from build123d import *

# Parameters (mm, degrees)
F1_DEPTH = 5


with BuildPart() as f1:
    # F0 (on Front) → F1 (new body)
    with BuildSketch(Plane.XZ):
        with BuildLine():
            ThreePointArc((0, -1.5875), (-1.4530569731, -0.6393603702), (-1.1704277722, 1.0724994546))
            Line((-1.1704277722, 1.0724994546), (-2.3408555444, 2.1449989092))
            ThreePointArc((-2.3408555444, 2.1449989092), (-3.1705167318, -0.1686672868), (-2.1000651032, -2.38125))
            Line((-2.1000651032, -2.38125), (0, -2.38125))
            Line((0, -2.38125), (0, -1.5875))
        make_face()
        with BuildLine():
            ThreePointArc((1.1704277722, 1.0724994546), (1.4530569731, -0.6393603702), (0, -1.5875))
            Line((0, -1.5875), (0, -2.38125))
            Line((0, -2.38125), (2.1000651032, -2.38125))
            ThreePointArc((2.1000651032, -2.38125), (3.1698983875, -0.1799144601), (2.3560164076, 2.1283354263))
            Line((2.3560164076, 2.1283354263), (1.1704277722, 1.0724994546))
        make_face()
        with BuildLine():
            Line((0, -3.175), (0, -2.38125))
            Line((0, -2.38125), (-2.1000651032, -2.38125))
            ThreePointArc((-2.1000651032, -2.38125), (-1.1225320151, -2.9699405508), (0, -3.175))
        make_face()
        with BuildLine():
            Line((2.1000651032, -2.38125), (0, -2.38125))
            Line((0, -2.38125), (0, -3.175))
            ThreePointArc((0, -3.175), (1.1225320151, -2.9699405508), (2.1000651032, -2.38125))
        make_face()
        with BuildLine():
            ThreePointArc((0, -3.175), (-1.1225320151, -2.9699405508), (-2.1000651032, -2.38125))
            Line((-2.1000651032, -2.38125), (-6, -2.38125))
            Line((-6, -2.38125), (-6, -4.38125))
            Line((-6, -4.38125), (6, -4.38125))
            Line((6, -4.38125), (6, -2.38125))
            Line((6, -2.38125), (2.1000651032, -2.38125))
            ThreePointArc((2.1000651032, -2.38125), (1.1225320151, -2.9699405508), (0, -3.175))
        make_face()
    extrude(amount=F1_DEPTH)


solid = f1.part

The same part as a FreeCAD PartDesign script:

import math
import FreeCAD as App
import Part
import Sketcher
from FreeCAD import Vector
Q = App.Units.Quantity

doc = App.newDocument("Part")
body = doc.addObject("PartDesign::Body", "Body")

# Sketch on XZ plane
sketch1 = body.newObject("Sketcher::SketchObject", "Sketch")
sketch1.AttachmentSupport = (doc.getObject("XZ_Plane"), [""])
sketch1.MapMode = "FlatFace"
sketch1.addGeometry(Part.ArcOfCircle(Part.Circle(Vector(0, 0, 0), Vector(0, 0, 1), 1.5875), math.radians(137.5), math.radians(270)), False)
sketch1.addGeometry(Part.LineSegment(Vector(-1.170428, 1.072499, 0), Vector(-2.340856, 2.144999, 0)), False)
sketch1.addGeometry(Part.ArcOfCircle(Part.Circle(Vector(0, 0, 0), Vector(0, 0, 1), 3.175), math.radians(137.5), math.radians(228.590378)), False)
sketch1.addGeometry(Part.LineSegment(Vector(-2.100065, -2.38125, 0), Vector(-6, -2.38125, 0)), False)
sketch1.addGeometry(Part.LineSegment(Vector(-6, -2.38125, 0), Vector(-6, -4.38125, 0)), False)
sketch1.addGeometry(Part.LineSegment(Vector(-6, -4.38125, 0), Vector(6, -4.38125, 0)), False)
sketch1.addGeometry(Part.LineSegment(Vector(6, -4.38125, 0), Vector(6, -2.38125, 0)), False)
sketch1.addGeometry(Part.LineSegment(Vector(6, -2.38125, 0), Vector(2.100065, -2.38125, 0)), False)
sketch1.addGeometry(Part.ArcOfCircle(Part.Circle(Vector(0, 0, 0), Vector(0, 0, 1), 3.175), math.radians(-48.590378), math.radians(42.093456)), False)
sketch1.addGeometry(Part.LineSegment(Vector(2.356016, 2.128335, 0), Vector(1.170428, 1.072499, 0)), False)
sketch1.addGeometry(Part.ArcOfCircle(Part.Circle(Vector(0, 0, 0), Vector(0, 0, 1), 1.5875), math.radians(-90), math.radians(42.5)), False)
sketch1.addConstraint(Sketcher.Constraint("Coincident", 0, 1, 1, 1))
sketch1.addConstraint(Sketcher.Constraint("Coincident", 1, 2, 2, 1))
sketch1.addConstraint(Sketcher.Constraint("Coincident", 2, 2, 3, 1))
sketch1.addConstraint(Sketcher.Constraint("Coincident", 3, 2, 4, 1))
sketch1.addConstraint(Sketcher.Constraint("Coincident", 4, 2, 5, 1))
sketch1.addConstraint(Sketcher.Constraint("Coincident", 5, 2, 6, 1))
sketch1.addConstraint(Sketcher.Constraint("Coincident", 6, 2, 7, 1))
sketch1.addConstraint(Sketcher.Constraint("Coincident", 7, 2, 8, 1))
sketch1.addConstraint(Sketcher.Constraint("Coincident", 8, 2, 9, 1))
sketch1.addConstraint(Sketcher.Constraint("Coincident", 9, 2, 10, 2))
sketch1.addConstraint(Sketcher.Constraint("Tangent", 10, 1, 0, 2))
sketch1.addConstraint(Sketcher.Constraint("Horizontal", 3))
sketch1.addConstraint(Sketcher.Constraint("Vertical", 4))
sketch1.addConstraint(Sketcher.Constraint("Horizontal", 5))
sketch1.addConstraint(Sketcher.Constraint("Vertical", 6))
sketch1.addConstraint(Sketcher.Constraint("Horizontal", 7))
sketch1.addConstraint(Sketcher.Constraint("Coincident", 0, 3, -1, 1))
sketch1.addConstraint(Sketcher.Constraint("Coincident", 2, 3, -1, 1))
sketch1.addConstraint(Sketcher.Constraint("Coincident", 8, 3, -1, 1))
sketch1.addConstraint(Sketcher.Constraint("Equal", 2, 8))
sketch1.addConstraint(Sketcher.Constraint("Equal", 0, 10))
sketch1.addConstraint(Sketcher.Constraint("Symmetric", 3, 2, 6, 2, -2))
sketch1.addConstraint(Sketcher.Constraint("PointOnObject", 10, 1, -2))
sketch1.addConstraint(Sketcher.Constraint("Horizontal", 0, 1, 9, 2))
sketch1.addConstraint(Sketcher.Constraint("DistanceX", 5, 1, 5, 2, Q("12 mm")))
sketch1.addConstraint(Sketcher.Constraint("DistanceY", 4, 2, 4, 1, Q("2 mm")))
sketch1.addConstraint(Sketcher.Constraint("Angle", 1, Q("137.5 deg")))
sketch1.addConstraint(Sketcher.Constraint("Radius", 2, Q("3.175 mm")))
sketch1.addConstraint(Sketcher.Constraint("Radius", 0, Q("1.5875 mm")))
sketch1.addConstraint(Sketcher.Constraint("DistanceY", -1, 1, 1, 2, Q("2.144999 mm")))
sketch1.addConstraint(Sketcher.Constraint("Distance", 9, Q("1.58758 mm")))
sketch1.addConstraint(Sketcher.Constraint("DistanceX", 3, 2, 3, 1, Q("3.899935 mm")))
pad1 = body.newObject("PartDesign::Pad", "Pad")
pad1.Profile = sketch1
pad1.Length = 5

doc.recompute()
